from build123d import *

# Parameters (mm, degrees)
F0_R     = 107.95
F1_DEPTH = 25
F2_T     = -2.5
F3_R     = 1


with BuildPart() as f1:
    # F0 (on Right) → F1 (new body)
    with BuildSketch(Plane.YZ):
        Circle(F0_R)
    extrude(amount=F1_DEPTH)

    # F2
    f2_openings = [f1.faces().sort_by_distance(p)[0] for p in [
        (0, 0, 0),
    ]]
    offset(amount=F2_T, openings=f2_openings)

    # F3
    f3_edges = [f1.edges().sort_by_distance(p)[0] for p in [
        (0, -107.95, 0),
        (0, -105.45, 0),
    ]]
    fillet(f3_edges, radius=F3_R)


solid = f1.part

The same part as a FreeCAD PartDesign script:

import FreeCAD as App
import Part
import Sketcher
Q = App.Units.Quantity


def edges_at(feature, points):
    """Names of the edges that pass closest to the given points."""
    edges = feature.Shape.Edges
    near = lambda p: min(range(len(edges)), key=lambda i: edges[i].distToShape(Part.Vertex(*p))[0])
    return sorted({f"Edge{near(p) + 1}" for p in points})


def faces_at(feature, points):
    """Names of the faces that lie closest to the given points."""
    faces = feature.Shape.Faces
    near = lambda p: min(range(len(faces)), key=lambda i: faces[i].distToShape(Part.Vertex(*p))[0])
    return sorted({f"Face{near(p) + 1}" for p in points})

doc = App.newDocument("Part")
body = doc.addObject("PartDesign::Body", "Body")

sketch1 = body.newObject("Sketcher::SketchObject", "Sketch")
sketch1.AttachmentSupport = (doc.getObject("YZ_Plane"), [""])
sketch1.MapMode = "FlatFace"
sketch1.addGeometry(Part.Circle(App.Vector(0, 0, 0), App.Vector(0, 0, 1), 108), False)
sketch1.addConstraint([
    Sketcher.Constraint("Coincident", 0, 3, -1, 1),
    Sketcher.Constraint("Diameter", 0, Q("215.9 mm")),
])
pad1 = body.newObject("PartDesign::Pad", "Pad")
pad1.Profile = sketch1
pad1.Length = 25
doc.recompute()

thickness = body.newObject("PartDesign::Thickness", "Thickness")
thickness.Base = (pad1, faces_at(pad1, [(0, 0, 0)]))
thickness.Value = 2.5
thickness.Reversed = True
thickness.Join = "Arc"
doc.recompute()

fillet = body.newObject("PartDesign::Fillet", "Fillet")
fillet.Base = (thickness, edges_at(thickness, [(0, -107.95, 0), (0, -105.45, 0)]))
fillet.Radius = 1

doc.recompute()
